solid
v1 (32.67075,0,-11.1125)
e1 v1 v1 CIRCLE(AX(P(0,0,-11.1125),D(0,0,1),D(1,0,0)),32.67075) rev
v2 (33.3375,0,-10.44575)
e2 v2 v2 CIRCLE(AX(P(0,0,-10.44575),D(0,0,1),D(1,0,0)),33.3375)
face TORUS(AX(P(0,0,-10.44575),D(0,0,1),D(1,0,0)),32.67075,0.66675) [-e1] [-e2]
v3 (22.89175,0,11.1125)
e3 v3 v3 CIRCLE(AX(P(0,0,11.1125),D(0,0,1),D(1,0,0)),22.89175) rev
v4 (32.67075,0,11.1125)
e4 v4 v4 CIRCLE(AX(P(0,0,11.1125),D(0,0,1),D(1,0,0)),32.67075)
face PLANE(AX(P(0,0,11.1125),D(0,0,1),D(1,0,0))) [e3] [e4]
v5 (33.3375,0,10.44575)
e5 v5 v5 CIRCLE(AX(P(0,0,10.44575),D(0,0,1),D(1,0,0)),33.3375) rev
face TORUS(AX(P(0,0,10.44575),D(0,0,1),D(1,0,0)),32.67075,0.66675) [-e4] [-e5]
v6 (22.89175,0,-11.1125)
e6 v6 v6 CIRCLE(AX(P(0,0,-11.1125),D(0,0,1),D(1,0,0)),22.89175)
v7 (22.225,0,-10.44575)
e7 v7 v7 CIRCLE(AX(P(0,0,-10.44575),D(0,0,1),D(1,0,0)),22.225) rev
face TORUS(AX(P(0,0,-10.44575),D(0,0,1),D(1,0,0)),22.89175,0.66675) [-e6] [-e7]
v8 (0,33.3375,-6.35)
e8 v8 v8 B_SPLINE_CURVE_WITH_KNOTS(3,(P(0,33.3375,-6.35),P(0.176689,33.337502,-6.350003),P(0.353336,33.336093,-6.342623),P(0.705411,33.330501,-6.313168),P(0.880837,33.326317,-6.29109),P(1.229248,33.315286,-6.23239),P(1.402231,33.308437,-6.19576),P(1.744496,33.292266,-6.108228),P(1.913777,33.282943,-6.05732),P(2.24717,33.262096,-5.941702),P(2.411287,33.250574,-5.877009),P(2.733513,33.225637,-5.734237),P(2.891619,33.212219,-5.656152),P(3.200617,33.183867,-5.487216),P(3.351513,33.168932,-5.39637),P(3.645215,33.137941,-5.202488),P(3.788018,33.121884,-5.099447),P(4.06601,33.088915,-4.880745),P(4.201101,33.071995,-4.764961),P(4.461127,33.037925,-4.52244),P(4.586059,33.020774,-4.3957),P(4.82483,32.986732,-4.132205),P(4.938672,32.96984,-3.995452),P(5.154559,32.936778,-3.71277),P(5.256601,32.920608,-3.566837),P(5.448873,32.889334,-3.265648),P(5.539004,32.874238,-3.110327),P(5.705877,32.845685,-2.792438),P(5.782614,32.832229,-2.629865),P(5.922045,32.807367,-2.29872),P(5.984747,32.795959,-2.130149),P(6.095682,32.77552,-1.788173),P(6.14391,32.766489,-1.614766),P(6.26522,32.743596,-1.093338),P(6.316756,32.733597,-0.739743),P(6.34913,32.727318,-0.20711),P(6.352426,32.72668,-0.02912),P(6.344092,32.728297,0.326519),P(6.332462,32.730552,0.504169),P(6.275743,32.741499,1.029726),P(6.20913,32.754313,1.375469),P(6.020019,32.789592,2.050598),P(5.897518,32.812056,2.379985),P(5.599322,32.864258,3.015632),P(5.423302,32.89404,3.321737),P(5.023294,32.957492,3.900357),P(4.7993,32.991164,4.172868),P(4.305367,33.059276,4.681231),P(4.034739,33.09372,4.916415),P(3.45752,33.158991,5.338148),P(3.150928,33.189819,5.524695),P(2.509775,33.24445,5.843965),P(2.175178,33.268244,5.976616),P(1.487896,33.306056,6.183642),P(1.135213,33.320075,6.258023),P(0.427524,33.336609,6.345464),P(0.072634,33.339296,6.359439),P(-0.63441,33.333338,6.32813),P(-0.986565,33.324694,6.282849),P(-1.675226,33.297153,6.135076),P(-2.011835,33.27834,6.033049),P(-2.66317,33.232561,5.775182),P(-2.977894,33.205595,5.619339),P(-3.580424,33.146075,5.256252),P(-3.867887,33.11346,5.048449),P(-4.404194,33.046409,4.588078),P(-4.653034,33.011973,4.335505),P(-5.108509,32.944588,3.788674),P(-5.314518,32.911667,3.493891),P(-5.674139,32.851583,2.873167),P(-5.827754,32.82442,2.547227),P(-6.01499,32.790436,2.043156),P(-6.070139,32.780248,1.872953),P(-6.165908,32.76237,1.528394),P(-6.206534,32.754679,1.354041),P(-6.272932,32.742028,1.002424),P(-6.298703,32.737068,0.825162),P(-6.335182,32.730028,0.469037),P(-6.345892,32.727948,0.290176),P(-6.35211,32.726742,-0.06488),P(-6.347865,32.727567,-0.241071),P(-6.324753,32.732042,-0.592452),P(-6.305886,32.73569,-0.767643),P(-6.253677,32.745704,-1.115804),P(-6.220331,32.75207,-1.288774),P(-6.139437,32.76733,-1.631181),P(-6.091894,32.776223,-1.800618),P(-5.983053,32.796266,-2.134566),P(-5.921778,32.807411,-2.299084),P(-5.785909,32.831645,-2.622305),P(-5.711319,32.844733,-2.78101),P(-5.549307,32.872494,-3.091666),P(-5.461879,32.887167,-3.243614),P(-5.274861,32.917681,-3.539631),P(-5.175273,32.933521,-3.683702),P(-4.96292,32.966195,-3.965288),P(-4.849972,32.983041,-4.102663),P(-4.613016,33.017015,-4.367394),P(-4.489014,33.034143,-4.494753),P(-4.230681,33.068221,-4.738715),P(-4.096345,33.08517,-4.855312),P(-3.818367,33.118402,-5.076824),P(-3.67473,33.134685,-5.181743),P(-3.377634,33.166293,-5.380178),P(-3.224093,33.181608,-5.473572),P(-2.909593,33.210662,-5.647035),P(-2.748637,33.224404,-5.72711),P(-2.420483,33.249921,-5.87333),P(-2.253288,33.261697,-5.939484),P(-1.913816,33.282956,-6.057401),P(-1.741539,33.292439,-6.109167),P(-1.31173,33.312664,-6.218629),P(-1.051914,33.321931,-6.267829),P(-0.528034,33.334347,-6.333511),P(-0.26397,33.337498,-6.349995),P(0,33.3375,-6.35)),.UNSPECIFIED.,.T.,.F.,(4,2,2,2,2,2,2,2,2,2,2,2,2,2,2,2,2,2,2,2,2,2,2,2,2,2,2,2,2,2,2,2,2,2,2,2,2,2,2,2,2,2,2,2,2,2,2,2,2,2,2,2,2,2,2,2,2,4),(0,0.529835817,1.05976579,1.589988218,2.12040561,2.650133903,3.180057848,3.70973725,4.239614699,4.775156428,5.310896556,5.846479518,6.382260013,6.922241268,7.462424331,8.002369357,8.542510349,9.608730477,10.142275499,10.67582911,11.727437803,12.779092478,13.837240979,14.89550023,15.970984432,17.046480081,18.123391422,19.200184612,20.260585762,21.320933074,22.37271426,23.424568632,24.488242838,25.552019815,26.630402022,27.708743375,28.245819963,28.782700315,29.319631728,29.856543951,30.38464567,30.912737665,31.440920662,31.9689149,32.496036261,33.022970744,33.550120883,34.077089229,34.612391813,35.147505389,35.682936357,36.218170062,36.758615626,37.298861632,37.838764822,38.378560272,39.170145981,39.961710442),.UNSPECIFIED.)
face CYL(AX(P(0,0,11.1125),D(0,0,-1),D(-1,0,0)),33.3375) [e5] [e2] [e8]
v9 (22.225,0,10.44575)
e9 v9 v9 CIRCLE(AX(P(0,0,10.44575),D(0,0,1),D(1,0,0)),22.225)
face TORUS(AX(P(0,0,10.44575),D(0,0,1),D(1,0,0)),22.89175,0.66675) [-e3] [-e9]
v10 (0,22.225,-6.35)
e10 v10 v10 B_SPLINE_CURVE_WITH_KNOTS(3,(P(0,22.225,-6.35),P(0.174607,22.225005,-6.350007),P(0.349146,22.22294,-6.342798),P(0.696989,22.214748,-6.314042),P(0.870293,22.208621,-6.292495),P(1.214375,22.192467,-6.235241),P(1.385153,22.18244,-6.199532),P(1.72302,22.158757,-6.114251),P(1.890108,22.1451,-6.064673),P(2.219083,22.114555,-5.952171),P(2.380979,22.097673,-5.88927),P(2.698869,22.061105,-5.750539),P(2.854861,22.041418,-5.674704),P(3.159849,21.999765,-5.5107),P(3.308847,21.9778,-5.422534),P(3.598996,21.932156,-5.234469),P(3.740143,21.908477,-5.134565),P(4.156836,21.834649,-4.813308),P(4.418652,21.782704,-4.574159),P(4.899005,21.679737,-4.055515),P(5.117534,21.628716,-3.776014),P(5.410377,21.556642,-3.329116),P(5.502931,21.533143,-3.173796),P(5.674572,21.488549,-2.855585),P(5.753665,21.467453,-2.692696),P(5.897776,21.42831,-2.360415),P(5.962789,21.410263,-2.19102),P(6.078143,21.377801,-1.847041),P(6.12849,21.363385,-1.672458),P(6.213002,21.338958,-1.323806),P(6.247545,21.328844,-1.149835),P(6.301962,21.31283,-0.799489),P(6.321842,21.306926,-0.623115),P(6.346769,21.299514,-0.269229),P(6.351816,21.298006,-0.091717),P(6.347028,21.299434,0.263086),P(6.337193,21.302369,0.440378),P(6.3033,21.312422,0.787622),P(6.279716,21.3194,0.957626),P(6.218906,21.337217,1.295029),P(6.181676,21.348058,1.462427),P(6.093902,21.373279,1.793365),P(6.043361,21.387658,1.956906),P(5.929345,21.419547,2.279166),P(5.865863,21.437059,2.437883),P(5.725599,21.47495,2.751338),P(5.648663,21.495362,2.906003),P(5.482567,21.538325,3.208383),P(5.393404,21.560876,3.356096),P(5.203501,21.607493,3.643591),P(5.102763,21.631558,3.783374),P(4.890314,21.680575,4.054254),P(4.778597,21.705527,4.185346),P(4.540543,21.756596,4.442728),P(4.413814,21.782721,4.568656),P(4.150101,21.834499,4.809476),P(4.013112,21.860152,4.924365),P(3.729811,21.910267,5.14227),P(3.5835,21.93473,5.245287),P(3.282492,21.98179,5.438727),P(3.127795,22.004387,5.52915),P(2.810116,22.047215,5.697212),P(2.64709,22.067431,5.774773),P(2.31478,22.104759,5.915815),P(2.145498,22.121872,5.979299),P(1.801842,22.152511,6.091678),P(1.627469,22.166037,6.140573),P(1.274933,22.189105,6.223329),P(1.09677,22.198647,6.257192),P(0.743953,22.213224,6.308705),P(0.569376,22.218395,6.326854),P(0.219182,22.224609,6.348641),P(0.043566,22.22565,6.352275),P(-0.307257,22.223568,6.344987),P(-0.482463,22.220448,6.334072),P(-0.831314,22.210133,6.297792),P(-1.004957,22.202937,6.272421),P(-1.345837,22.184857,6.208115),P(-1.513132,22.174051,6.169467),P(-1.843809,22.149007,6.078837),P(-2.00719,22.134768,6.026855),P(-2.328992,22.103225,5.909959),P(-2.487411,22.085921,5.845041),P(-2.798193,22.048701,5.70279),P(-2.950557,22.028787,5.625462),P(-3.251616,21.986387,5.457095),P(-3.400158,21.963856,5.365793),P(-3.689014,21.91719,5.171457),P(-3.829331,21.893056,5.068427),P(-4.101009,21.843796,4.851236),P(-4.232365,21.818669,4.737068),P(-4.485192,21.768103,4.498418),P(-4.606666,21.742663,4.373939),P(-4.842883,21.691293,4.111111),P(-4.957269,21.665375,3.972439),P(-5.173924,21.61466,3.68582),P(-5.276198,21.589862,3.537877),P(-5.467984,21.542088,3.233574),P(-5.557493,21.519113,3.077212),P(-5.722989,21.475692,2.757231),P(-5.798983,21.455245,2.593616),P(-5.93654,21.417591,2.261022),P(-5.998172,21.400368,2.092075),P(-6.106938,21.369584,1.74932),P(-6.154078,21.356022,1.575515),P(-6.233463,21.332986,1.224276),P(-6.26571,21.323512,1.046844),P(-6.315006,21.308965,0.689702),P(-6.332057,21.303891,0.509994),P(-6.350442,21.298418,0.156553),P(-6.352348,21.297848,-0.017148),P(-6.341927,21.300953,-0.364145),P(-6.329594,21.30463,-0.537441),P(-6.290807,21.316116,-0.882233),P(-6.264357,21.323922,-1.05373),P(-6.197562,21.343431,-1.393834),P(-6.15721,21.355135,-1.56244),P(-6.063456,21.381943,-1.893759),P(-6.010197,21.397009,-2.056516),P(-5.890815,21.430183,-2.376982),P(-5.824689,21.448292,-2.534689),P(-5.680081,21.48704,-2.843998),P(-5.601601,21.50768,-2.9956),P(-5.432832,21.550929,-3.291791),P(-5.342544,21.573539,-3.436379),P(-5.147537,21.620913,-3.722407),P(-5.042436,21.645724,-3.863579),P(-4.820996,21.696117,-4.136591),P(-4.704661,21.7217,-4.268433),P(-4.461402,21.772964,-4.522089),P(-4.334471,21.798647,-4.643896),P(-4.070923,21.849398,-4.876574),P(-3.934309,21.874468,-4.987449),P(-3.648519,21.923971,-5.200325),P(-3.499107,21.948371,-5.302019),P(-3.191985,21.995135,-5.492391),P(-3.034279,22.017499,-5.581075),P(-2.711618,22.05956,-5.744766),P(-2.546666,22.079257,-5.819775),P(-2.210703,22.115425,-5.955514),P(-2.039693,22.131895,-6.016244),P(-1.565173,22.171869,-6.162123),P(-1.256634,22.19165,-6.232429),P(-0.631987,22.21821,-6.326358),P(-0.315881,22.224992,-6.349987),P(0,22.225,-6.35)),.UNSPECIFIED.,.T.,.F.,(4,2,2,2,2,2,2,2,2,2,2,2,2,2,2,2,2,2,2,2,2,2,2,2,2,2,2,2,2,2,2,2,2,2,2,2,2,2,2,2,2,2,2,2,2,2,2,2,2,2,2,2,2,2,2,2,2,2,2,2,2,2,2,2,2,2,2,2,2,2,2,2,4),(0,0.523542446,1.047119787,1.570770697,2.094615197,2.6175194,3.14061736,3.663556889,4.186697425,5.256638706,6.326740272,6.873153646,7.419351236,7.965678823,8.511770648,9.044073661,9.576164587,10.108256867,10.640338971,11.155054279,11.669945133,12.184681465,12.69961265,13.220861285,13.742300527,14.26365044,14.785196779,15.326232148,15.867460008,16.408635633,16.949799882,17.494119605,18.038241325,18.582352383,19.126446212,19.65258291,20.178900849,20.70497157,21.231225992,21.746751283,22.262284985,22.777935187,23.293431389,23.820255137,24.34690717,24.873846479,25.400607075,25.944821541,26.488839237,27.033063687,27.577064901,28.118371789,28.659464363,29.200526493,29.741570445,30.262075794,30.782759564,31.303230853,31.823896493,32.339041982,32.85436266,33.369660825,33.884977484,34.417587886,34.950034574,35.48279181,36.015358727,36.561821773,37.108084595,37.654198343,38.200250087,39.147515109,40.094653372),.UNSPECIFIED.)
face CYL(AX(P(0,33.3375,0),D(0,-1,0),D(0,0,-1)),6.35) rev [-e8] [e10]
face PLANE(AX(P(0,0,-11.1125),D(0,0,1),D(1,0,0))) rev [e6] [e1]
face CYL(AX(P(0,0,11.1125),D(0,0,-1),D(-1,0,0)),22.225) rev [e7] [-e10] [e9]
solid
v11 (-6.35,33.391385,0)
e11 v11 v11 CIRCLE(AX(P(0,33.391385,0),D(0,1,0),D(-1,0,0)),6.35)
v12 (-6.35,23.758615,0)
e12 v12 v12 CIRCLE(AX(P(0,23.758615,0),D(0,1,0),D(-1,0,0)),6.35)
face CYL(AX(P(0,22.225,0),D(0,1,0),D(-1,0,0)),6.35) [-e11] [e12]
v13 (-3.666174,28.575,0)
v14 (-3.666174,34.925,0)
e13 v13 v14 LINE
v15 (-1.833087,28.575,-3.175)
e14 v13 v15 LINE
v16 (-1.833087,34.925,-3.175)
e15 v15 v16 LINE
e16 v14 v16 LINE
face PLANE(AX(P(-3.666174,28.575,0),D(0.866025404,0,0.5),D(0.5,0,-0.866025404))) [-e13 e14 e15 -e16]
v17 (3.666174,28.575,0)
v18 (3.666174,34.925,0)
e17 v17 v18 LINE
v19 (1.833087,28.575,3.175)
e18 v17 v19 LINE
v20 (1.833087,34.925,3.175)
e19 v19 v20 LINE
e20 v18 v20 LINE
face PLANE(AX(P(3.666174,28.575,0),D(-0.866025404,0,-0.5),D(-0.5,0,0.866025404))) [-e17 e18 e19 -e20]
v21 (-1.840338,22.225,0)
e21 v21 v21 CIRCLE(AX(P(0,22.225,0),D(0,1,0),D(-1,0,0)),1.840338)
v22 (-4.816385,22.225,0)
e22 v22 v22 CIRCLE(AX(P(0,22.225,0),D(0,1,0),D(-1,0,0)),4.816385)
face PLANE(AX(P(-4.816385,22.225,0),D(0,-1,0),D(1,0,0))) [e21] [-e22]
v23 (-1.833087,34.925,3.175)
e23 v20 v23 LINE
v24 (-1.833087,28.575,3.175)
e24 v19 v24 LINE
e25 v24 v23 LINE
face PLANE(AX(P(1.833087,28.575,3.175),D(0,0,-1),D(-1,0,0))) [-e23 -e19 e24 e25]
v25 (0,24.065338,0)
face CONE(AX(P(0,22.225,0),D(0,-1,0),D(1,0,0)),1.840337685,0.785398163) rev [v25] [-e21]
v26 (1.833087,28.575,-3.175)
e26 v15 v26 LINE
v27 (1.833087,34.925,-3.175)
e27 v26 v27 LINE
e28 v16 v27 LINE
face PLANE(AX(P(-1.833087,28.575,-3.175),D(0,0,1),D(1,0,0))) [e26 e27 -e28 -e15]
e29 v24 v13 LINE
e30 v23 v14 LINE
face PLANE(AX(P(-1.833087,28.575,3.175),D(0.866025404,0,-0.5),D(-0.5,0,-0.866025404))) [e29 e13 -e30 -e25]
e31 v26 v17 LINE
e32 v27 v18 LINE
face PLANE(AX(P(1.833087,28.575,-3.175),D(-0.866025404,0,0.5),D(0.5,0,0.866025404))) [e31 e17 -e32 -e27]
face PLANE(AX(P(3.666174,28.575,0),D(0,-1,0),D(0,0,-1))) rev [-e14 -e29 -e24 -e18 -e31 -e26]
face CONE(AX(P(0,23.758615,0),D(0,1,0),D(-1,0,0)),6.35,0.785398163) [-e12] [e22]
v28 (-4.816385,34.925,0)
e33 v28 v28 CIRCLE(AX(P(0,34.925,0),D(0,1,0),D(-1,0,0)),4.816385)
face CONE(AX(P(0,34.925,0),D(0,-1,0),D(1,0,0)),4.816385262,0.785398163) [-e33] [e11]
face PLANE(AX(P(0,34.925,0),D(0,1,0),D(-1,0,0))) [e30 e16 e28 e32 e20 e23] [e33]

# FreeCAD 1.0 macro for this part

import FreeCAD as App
import Part
import Sketcher
Q = App.Units.Quantity


def edges_at(feature, points):
    """Names of the edges that pass closest to the given points."""
    edges = feature.Shape.Edges
    near = lambda p: min(range(len(edges)), key=lambda i: edges[i].distToShape(Part.Vertex(*p))[0])
    return sorted({f"Edge{near(p) + 1}" for p in points})

doc = App.newDocument("Part")
body = doc.addObject("PartDesign::Body", "Body")

# Sketch on XY plane
sketch1 = body.newObject("Sketcher::SketchObject", "Sketch")
sketch1.AttachmentSupport = (doc.getObject("XY_Plane"), [""])
sketch1.MapMode = "FlatFace"
sketch1.addGeometry([
    Part.Circle(App.Vector(0, 0, 0), App.Vector(0, 0, 1), 33),
    Part.Circle(App.Vector(0, 0, 0), App.Vector(0, 0, 1), 22),
], False)
sketch1.addConstraint([
    Sketcher.Constraint("Coincident", 0, 3, -1, 1),
    Sketcher.Constraint("Coincident", 1, 3, -1, 1),
    Sketcher.Constraint("Diameter", 1, Q("1.75 in")),
    Sketcher.Constraint("Diameter", 0, Q("2.625 in")),
])
pad1 = body.newObject("PartDesign::Pad", "Pad")
pad1.Profile = sketch1
pad1.Length = Q("0.875 in")
pad1.Midplane = True

# Sketch on XZ plane
sketch2 = body.newObject("Sketcher::SketchObject", "Sketch001")
sketch2.AttachmentSupport = (doc.getObject("XZ_Plane"), [""])
sketch2.MapMode = "FlatFace"
sketch2.addGeometry(Part.Circle(App.Vector(0, 0, 0), App.Vector(0, 0, 1), 6), False)
sketch2.addConstraint([
    Sketcher.Constraint("Coincident", 0, 3, -1, 1),
    Sketcher.Constraint("Diameter", 0, Q("0.5 in")),
])
pocket1 = body.newObject("PartDesign::Pocket", "Pocket")
pocket1.Profile = sketch2
pocket1.Type = "ThroughAll"
doc.recompute()

fillet = body.newObject("PartDesign::Fillet", "Fillet")
fillet.Base = (pocket1, edges_at(pocket1, [
    (-33.337, 0, -11.113),
    (-33.337, 0, 11.113),
    (-22.225, 0, -11.113),
    (-22.225, 0, 11.113),
]))
fillet.Radius = 0.66675
body2 = doc.addObject("PartDesign::Body", "Body001")

# Sketch on XY plane
sketch3 = body2.newObject("Sketcher::SketchObject", "Sketch002")
sketch3.AttachmentSupport = (doc.getObject("XY_Plane001"), [""])
sketch3.MapMode = "FlatFace"
sketch3.addGeometry([
    Part.LineSegment(App.Vector(-4.8, 22.2, 0), App.Vector(-1.8, 22.2, 0)),  # 0
    Part.LineSegment(App.Vector(-1.8, 22.2, 0), App.Vector(0, 24.1, 0)),  # 1
    Part.LineSegment(App.Vector(0, 24.1, 0), App.Vector(0, 34.9, 0)),  # 2
    Part.LineSegment(App.Vector(0, 34.9, 0), App.Vector(-4.8, 34.9, 0)),  # 3
    Part.LineSegment(App.Vector(-4.8, 34.9, 0), App.Vector(-6.3, 33.4, 0)),  # 4
    Part.LineSegment(App.Vector(-6.3, 33.4, 0), App.Vector(-6.3, 23.8, 0)),  # 5
    Part.LineSegment(App.Vector(-6.3, 23.8, 0), App.Vector(-4.8, 22.2, 0)),  # 6
], False)
sketch3.addConstraint([
    Sketcher.Constraint("Coincident", 0, 2, 1, 1),
    Sketcher.Constraint("Coincident", 1, 2, 2, 1),
    Sketcher.Constraint("Coincident", 2, 2, 3, 1),
    Sketcher.Constraint("Coincident", 3, 2, 4, 1),
    Sketcher.Constraint("Coincident", 4, 2, 5, 1),
    Sketcher.Constraint("Coincident", 5, 2, 6, 1),
    Sketcher.Constraint("Coincident", 6, 2, 0, 1),
    Sketcher.Constraint("Horizontal", 0),
    Sketcher.Constraint("Vertical", 2),
    Sketcher.Constraint("Horizontal", 3),
    Sketcher.Constraint("Vertical", 5),
    Sketcher.Constraint("PointOnObject", 1, 2, -2),
    Sketcher.Constraint("Parallel", 1, 4),
    Sketcher.Constraint("Perpendicular", 4, 6),
    Sketcher.Constraint("Vertical", 3, 2, 6, 2),
    Sketcher.Constraint("Equal", 4, 6),
    Sketcher.Constraint("DistanceY", 0, 2, 2, 2, Q("0.5 in")),
    Sketcher.Constraint("DistanceX", 4, 2, -1, 1, Q("0.25 in")),
    Sketcher.Constraint("DistanceY", -1, 1, 0, 2, Q("0.875 in")),
    Sketcher.Constraint("DistanceY", 5, 2, 5, 1, Q("9.632771 mm")),
    Sketcher.Constraint("Distance", 1, Q("2.602631 mm")),
])
revolution = body2.newObject("PartDesign::Revolution", "Revolution")
revolution.Profile = sketch3
revolution.ReferenceAxis = (sketch3, ["V_Axis"])
revolution.Angle = 360

# Sketch on XZ plane
sketch4 = body2.newObject("Sketcher::SketchObject", "Sketch003")
sketch4.AttachmentSupport = (doc.getObject("XZ_Plane001"), [""])
sketch4.MapMode = "FlatFace"
sketch4.AttachmentOffset = App.Placement(App.Vector(0, 0, -1.375 * 25.4), App.Rotation())
sketch4.addGeometry([
    Part.LineSegment(App.Vector(3.7, 0, 0), App.Vector(1.8, 3.2, 0)),  # 0
    Part.LineSegment(App.Vector(1.8, 3.2, 0), App.Vector(-1.8, 3.2, 0)),  # 1
    Part.LineSegment(App.Vector(-1.8, 3.2, 0), App.Vector(-3.7, 0, 0)),  # 2
    Part.LineSegment(App.Vector(-3.7, 0, 0), App.Vector(-1.8, -3.2, 0)),  # 3
    Part.LineSegment(App.Vector(-1.8, -3.2, 0), App.Vector(1.8, -3.2, 0)),  # 4
    Part.LineSegment(App.Vector(1.8, -3.2, 0), App.Vector(3.7, 0, 0)),  # 5
], False)
sketch4.addConstraint([
    Sketcher.Constraint("Coincident", 0, 2, 1, 1),
    Sketcher.Constraint("Coincident", 1, 2, 2, 1),
    Sketcher.Constraint("Coincident", 2, 2, 3, 1),
    Sketcher.Constraint("Coincident", 3, 2, 4, 1),
    Sketcher.Constraint("Coincident", 4, 2, 5, 1),
    Sketcher.Constraint("Coincident", 5, 2, 0, 1),
    Sketcher.Constraint("Horizontal", 1),
    Sketcher.Constraint("Horizontal", 4),
    Sketcher.Constraint("Symmetric", 0, 2, 3, 2, -1, 1),
    Sketcher.Constraint("Symmetric", 2, 2, 5, 2, -1, 1),
    Sketcher.Constraint("PointOnObject", 2, 2, -1),
    Sketcher.Constraint("Parallel", 2, 5),
    Sketcher.Constraint("Vertical", 1, 2, 3, 2),
    Sketcher.Constraint("Angle", 0, Q("120 deg")),
    Sketcher.Constraint("DistanceY", 3, 2, 1, 2, Q("0.25 in")),
    Sketcher.Constraint("DistanceX", 1, 2, 1, 1, Q("3.666174 mm")),
])
pocket2 = body2.newObject("PartDesign::Pocket", "Pocket001")
pocket2.Profile = sketch4
pocket2.Length = Q("0.25 in")
pocket2.Reversed = True

doc.recompute()
